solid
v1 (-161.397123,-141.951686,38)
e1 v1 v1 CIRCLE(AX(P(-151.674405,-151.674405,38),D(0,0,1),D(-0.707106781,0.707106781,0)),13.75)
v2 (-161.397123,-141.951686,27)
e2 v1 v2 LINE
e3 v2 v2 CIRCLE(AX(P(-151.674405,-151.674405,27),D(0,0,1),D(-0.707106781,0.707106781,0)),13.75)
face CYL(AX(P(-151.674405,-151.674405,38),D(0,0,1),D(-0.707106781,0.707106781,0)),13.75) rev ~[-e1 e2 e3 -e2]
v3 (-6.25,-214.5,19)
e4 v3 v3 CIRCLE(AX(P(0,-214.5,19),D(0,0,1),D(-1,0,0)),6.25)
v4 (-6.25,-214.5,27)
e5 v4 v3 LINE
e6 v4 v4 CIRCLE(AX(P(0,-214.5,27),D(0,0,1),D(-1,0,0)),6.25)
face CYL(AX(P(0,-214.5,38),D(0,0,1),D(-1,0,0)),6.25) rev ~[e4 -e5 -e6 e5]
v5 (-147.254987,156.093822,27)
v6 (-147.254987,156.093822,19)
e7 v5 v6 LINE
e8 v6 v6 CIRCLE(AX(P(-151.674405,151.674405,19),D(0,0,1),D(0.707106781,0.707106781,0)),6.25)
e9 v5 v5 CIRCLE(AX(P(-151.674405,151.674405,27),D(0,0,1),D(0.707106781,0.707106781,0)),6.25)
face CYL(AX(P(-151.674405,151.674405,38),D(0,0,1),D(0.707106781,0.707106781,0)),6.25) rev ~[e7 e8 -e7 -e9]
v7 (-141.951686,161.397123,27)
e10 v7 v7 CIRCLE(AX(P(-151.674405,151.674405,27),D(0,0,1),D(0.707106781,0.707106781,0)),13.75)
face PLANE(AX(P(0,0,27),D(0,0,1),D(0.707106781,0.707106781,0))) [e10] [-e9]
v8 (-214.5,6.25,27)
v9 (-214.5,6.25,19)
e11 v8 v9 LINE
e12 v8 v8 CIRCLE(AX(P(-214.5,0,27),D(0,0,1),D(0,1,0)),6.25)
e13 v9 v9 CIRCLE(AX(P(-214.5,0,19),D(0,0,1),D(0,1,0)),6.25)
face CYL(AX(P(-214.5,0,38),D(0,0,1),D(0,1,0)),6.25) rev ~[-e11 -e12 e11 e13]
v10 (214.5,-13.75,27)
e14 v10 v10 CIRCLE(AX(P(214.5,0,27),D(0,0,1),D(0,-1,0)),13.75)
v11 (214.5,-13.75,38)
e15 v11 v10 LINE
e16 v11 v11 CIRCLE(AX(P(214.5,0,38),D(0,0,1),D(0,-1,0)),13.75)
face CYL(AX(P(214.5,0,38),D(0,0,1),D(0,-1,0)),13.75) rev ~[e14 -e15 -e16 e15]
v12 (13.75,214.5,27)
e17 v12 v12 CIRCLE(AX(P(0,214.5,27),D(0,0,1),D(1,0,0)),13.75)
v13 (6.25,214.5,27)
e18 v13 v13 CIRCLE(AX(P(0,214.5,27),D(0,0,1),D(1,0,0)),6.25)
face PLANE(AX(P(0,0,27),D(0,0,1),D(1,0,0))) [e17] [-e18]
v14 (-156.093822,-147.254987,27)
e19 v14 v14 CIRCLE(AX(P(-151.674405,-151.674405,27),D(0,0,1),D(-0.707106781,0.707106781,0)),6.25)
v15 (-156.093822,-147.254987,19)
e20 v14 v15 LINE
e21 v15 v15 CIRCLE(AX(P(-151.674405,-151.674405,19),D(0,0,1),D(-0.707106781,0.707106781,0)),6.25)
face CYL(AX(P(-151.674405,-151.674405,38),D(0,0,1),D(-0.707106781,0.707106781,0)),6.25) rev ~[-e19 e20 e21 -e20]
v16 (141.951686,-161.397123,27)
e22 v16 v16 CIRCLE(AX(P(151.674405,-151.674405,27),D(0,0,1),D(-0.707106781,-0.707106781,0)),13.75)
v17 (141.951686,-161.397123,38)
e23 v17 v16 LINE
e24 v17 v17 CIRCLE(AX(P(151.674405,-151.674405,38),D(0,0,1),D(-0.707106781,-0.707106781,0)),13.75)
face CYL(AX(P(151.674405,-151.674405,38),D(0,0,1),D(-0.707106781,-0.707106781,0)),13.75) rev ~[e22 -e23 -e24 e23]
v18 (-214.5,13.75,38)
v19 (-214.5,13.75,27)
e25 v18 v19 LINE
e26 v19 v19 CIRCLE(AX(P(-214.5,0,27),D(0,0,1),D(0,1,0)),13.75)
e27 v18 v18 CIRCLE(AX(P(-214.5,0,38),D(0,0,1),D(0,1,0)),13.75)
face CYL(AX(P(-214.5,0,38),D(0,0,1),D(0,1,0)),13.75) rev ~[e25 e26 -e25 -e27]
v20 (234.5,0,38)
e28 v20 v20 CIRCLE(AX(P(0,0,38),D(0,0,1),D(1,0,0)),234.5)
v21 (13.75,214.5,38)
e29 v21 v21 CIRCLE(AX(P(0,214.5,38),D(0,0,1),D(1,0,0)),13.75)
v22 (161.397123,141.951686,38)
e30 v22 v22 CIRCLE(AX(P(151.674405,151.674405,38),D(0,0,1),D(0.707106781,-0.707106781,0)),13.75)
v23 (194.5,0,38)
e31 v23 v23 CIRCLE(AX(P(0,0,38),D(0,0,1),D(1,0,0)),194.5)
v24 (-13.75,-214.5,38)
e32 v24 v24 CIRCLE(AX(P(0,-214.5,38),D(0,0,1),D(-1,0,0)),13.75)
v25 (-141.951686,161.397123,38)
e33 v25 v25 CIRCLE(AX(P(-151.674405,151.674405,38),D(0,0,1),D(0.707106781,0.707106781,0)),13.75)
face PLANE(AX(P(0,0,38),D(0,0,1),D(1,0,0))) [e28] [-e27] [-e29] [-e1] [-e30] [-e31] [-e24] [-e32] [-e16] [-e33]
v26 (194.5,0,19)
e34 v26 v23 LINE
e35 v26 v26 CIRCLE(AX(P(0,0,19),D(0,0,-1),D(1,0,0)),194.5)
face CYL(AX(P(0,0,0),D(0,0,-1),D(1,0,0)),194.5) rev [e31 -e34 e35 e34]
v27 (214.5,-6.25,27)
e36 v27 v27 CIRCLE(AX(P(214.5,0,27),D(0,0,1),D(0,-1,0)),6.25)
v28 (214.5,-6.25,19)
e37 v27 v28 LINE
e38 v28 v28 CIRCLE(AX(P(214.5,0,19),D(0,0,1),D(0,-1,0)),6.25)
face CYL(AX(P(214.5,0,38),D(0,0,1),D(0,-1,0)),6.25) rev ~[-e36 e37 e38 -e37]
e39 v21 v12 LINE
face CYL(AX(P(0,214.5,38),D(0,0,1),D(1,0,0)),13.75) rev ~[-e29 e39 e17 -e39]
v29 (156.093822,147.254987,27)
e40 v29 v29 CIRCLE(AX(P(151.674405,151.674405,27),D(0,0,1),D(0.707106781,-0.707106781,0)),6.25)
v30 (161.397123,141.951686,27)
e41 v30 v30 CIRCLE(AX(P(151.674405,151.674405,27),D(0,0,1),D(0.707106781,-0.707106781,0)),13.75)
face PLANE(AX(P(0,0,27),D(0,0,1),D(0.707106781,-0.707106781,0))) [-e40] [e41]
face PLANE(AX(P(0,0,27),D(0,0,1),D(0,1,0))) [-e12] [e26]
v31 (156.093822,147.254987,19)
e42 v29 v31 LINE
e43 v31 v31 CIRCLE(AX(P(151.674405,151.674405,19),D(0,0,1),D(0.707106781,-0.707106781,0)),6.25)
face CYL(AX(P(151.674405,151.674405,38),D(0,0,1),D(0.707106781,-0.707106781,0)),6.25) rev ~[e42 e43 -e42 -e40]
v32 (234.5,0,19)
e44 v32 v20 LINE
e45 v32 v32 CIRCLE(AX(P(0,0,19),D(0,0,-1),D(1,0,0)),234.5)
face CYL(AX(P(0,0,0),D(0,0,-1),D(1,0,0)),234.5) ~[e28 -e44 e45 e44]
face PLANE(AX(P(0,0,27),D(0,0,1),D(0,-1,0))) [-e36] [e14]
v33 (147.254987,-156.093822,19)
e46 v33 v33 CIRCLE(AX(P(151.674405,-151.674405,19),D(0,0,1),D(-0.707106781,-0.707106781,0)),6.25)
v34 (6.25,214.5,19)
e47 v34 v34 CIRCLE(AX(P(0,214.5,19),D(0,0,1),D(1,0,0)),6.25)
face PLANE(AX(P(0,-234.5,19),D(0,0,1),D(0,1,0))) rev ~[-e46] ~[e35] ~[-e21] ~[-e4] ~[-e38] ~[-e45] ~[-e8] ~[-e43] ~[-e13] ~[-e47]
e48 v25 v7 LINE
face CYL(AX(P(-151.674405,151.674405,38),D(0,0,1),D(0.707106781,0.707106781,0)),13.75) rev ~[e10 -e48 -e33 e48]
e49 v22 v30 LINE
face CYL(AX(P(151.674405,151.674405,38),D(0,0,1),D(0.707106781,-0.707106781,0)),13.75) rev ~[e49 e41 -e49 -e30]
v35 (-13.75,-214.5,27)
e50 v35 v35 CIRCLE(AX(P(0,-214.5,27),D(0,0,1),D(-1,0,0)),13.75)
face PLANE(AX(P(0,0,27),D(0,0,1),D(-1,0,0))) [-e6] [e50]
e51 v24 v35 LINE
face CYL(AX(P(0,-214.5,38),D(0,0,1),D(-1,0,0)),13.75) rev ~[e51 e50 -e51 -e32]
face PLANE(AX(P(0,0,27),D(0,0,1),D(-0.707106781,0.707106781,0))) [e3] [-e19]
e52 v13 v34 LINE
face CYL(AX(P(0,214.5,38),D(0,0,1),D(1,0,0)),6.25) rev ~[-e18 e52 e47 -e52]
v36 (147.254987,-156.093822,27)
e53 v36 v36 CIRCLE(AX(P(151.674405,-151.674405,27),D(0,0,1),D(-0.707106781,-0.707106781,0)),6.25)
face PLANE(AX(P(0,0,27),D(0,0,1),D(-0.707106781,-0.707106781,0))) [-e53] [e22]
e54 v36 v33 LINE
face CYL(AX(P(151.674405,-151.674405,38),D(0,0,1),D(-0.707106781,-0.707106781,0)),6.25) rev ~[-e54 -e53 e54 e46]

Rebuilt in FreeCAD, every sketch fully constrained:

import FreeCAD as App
import Part
import Sketcher


def add_polygon(sketch, points):
    """Adds a closed chain of lines whose ends are joined by coincident constraints."""
    first, n = sketch.GeometryCount, len(points)
    for a, b in zip(points, points[1:] + points[:1]):
        sketch.addGeometry(Part.LineSegment(App.Vector(*a, 0), App.Vector(*b, 0)), False)
    for i in range(n):
        sketch.addConstraint(Sketcher.Constraint("Coincident", first + i, 2, first + (i + 1) % n, 1))

doc = App.newDocument("Part")
params = doc.addObject("Spreadsheet::Sheet", "Params")
for row, (alias, value) in enumerate([
    ("sketch1_diameter", "389 mm"),
    ("sketch1_diameter2", "469 mm"),
    ("pad1_length", "38 mm"),
    ("sketch2_diameter", "12.5 mm"),
    ("sketch3_diameter", "27.5 mm"),
    ("sketch3_diameter2", "12.5 mm"),
    ("pocket2_length", "11 mm"),
    ("sketch4_diameter", "479 mm"),
    ("sketch4_diameter2", "469 mm"),
    ("pad2_length", "9 mm"),
    ("sketch5_width", "5 mm"),
    ("sketch5_width2", "479 mm"),
    ("sketch5_height", "10 mm"),
], start=1):
    params.set(f"A{row}", alias)
    params.set(f"B{row}", "=" + value)
    params.setAlias(f"B{row}", alias)

body = doc.addObject("PartDesign::Body", "Body")

# Sketch on XY plane
sketch1 = body.newObject("Sketcher::SketchObject", "Sketch")
sketch1.AttachmentSupport = (doc.getObject("XY_Plane"), [""])
sketch1.MapMode = "FlatFace"
sketch1.addGeometry([
    Part.Circle(App.Vector(0, 0, 0), App.Vector(0, 0, 1), 234),
    Part.Circle(App.Vector(0, 0, 0), App.Vector(0, 0, 1), 194),
], False)
sketch1.addConstraint([
    Sketcher.Constraint("Coincident", 0, 3, -1, 1),
    Sketcher.Constraint("Coincident", 1, 3, -1, 1),
    Sketcher.Constraint("Diameter", 1, 389.0),
    Sketcher.Constraint("Diameter", 0, 469.0),
])
sketch1.setExpression("Constraints[2]", "Params.sketch1_diameter")
sketch1.setExpression("Constraints[3]", "Params.sketch1_diameter2")
pad1 = body.newObject("PartDesign::Pad", "Pad")
pad1.Profile = sketch1
pad1.setExpression("Length", "Params.pad1_length")

# Sketch on XY plane
sketch2 = body.newObject("Sketcher::SketchObject", "Sketch001")
sketch2.AttachmentSupport = (doc.getObject("XY_Plane"), [""])
sketch2.MapMode = "FlatFace"
sketch2.AttachmentOffset = App.Placement(App.Vector(0, 0, 38), App.Rotation())
sketch2.addGeometry(Part.Circle(App.Vector(0, 214, 0), App.Vector(0, 0, 1), 6), False)
sketch2.addConstraint([
    Sketcher.Constraint("PointOnObject", 0, 3, -2),
    Sketcher.Constraint("Diameter", 0, 12.5),
    Sketcher.Constraint("DistanceY", -1, 1, 0, 3, 214.5),
])
sketch2.setExpression("Constraints[1]", "Params.sketch2_diameter")
pocket1 = body.newObject("PartDesign::Pocket", "Pocket")
pocket1.Profile = sketch2
pocket1.Type = "ThroughAll"

# Sketch on XY plane
sketch3 = body.newObject("Sketcher::SketchObject", "Sketch002")
sketch3.AttachmentSupport = (doc.getObject("XY_Plane"), [""])
sketch3.MapMode = "FlatFace"
sketch3.AttachmentOffset = App.Placement(App.Vector(0, 0, 38), App.Rotation())
sketch3.addGeometry([
    Part.Circle(App.Vector(0, 214, 0), App.Vector(0, 0, 1), 14),
    Part.Circle(App.Vector(0, 214, 0), App.Vector(0, 0, 1), 6),
], False)
sketch3.addConstraint([
    Sketcher.Constraint("Coincident", 1, 3, 0, 3),
    Sketcher.Constraint("PointOnObject", 0, 3, -2),
    Sketcher.Constraint("Diameter", 0, 27.5),
    Sketcher.Constraint("Diameter", 1, 12.5),
    Sketcher.Constraint("DistanceY", -1, 1, 0, 3, 214.5),
])
sketch3.setExpression("Constraints[2]", "Params.sketch3_diameter")
sketch3.setExpression("Constraints[3]", "Params.sketch3_diameter2")
pocket2 = body.newObject("PartDesign::Pocket", "Pocket001")
pocket2.Profile = sketch3
pocket2.setExpression("Length", "Params.pocket2_length")
doc.recompute()

polarpattern = body.newObject("PartDesign::PolarPattern", "PolarPattern")
polarpattern.Originals = [pocket1, pocket2]
polarpattern.Axis = (doc.getObject("Z_Axis"), [""])
polarpattern.Angle = 360
polarpattern.Occurrences = 8
body.Tip = polarpattern

# Sketch on XY plane
sketch4 = body.newObject("Sketcher::SketchObject", "Sketch003")
sketch4.AttachmentSupport = (doc.getObject("XY_Plane"), [""])
sketch4.MapMode = "FlatFace"
sketch4.addGeometry([
    Part.Circle(App.Vector(0, 0, 0), App.Vector(0, 0, 1), 240),
    Part.Circle(App.Vector(0, 0, 0), App.Vector(0, 0, 1), 234),
], False)
sketch4.addConstraint([
    Sketcher.Constraint("Coincident", 0, 3, -1, 1),
    Sketcher.Constraint("Coincident", 1, 3, -1, 1),
    Sketcher.Constraint("Diameter", 0, 479.0),
    Sketcher.Constraint("Diameter", 1, 469.0),
])
sketch4.setExpression("Constraints[2]", "Params.sketch4_diameter")
sketch4.setExpression("Constraints[3]", "Params.sketch4_diameter2")
pad2 = body.newObject("PartDesign::Pad", "Pad001")
pad2.Profile = sketch4
pad2.setExpression("Length", "Params.pad2_length")

# Sketch on YZ plane
sketch5 = body.newObject("Sketcher::SketchObject", "Sketch004")
sketch5.AttachmentSupport = (doc.getObject("YZ_Plane"), [""])
sketch5.MapMode = "FlatFace"
add_polygon(sketch5, [(-234, 19), (-234, 9), (-240, 9), (-240, 0), (240, 0), (240, 9), (234, 9), (234, 19)])  # lines 0-7
sketch5.addConstraint([
    Sketcher.Constraint("Vertical", 0),
    Sketcher.Constraint("Horizontal", 1),
    Sketcher.Constraint("Vertical", 2),
    Sketcher.Constraint("Horizontal", 3),
    Sketcher.Constraint("Vertical", 4),
    Sketcher.Constraint("Horizontal", 5),
    Sketcher.Constraint("Vertical", 6),
    Sketcher.Constraint("Horizontal", 7),
    Sketcher.Constraint("Symmetric", 2, 2, 3, 2, -1, 1),
    Sketcher.Constraint("Symmetric", 0, 2, 5, 2, -2),
    Sketcher.Constraint("DistanceY", -1, 1, 6, 2, 19.0),
    Sketcher.Constraint("DistanceX", 1, 2, 1, 1, 5.0),
    Sketcher.Constraint("DistanceX", 3, 1, 3, 2, 479.0),
    Sketcher.Constraint("DistanceY", 0, 2, 0, 1, 10.0),
])
sketch5.setExpression("Constraints[19]", "Params.sketch5_width")
sketch5.setExpression("Constraints[20]", "Params.sketch5_width2")
sketch5.setExpression("Constraints[21]", "Params.sketch5_height")
pocket3 = body.newObject("PartDesign::Pocket", "Pocket002")
pocket3.Profile = sketch5
pocket3.Type = "ThroughAll"
pocket3.Midplane = True

doc.recompute()
